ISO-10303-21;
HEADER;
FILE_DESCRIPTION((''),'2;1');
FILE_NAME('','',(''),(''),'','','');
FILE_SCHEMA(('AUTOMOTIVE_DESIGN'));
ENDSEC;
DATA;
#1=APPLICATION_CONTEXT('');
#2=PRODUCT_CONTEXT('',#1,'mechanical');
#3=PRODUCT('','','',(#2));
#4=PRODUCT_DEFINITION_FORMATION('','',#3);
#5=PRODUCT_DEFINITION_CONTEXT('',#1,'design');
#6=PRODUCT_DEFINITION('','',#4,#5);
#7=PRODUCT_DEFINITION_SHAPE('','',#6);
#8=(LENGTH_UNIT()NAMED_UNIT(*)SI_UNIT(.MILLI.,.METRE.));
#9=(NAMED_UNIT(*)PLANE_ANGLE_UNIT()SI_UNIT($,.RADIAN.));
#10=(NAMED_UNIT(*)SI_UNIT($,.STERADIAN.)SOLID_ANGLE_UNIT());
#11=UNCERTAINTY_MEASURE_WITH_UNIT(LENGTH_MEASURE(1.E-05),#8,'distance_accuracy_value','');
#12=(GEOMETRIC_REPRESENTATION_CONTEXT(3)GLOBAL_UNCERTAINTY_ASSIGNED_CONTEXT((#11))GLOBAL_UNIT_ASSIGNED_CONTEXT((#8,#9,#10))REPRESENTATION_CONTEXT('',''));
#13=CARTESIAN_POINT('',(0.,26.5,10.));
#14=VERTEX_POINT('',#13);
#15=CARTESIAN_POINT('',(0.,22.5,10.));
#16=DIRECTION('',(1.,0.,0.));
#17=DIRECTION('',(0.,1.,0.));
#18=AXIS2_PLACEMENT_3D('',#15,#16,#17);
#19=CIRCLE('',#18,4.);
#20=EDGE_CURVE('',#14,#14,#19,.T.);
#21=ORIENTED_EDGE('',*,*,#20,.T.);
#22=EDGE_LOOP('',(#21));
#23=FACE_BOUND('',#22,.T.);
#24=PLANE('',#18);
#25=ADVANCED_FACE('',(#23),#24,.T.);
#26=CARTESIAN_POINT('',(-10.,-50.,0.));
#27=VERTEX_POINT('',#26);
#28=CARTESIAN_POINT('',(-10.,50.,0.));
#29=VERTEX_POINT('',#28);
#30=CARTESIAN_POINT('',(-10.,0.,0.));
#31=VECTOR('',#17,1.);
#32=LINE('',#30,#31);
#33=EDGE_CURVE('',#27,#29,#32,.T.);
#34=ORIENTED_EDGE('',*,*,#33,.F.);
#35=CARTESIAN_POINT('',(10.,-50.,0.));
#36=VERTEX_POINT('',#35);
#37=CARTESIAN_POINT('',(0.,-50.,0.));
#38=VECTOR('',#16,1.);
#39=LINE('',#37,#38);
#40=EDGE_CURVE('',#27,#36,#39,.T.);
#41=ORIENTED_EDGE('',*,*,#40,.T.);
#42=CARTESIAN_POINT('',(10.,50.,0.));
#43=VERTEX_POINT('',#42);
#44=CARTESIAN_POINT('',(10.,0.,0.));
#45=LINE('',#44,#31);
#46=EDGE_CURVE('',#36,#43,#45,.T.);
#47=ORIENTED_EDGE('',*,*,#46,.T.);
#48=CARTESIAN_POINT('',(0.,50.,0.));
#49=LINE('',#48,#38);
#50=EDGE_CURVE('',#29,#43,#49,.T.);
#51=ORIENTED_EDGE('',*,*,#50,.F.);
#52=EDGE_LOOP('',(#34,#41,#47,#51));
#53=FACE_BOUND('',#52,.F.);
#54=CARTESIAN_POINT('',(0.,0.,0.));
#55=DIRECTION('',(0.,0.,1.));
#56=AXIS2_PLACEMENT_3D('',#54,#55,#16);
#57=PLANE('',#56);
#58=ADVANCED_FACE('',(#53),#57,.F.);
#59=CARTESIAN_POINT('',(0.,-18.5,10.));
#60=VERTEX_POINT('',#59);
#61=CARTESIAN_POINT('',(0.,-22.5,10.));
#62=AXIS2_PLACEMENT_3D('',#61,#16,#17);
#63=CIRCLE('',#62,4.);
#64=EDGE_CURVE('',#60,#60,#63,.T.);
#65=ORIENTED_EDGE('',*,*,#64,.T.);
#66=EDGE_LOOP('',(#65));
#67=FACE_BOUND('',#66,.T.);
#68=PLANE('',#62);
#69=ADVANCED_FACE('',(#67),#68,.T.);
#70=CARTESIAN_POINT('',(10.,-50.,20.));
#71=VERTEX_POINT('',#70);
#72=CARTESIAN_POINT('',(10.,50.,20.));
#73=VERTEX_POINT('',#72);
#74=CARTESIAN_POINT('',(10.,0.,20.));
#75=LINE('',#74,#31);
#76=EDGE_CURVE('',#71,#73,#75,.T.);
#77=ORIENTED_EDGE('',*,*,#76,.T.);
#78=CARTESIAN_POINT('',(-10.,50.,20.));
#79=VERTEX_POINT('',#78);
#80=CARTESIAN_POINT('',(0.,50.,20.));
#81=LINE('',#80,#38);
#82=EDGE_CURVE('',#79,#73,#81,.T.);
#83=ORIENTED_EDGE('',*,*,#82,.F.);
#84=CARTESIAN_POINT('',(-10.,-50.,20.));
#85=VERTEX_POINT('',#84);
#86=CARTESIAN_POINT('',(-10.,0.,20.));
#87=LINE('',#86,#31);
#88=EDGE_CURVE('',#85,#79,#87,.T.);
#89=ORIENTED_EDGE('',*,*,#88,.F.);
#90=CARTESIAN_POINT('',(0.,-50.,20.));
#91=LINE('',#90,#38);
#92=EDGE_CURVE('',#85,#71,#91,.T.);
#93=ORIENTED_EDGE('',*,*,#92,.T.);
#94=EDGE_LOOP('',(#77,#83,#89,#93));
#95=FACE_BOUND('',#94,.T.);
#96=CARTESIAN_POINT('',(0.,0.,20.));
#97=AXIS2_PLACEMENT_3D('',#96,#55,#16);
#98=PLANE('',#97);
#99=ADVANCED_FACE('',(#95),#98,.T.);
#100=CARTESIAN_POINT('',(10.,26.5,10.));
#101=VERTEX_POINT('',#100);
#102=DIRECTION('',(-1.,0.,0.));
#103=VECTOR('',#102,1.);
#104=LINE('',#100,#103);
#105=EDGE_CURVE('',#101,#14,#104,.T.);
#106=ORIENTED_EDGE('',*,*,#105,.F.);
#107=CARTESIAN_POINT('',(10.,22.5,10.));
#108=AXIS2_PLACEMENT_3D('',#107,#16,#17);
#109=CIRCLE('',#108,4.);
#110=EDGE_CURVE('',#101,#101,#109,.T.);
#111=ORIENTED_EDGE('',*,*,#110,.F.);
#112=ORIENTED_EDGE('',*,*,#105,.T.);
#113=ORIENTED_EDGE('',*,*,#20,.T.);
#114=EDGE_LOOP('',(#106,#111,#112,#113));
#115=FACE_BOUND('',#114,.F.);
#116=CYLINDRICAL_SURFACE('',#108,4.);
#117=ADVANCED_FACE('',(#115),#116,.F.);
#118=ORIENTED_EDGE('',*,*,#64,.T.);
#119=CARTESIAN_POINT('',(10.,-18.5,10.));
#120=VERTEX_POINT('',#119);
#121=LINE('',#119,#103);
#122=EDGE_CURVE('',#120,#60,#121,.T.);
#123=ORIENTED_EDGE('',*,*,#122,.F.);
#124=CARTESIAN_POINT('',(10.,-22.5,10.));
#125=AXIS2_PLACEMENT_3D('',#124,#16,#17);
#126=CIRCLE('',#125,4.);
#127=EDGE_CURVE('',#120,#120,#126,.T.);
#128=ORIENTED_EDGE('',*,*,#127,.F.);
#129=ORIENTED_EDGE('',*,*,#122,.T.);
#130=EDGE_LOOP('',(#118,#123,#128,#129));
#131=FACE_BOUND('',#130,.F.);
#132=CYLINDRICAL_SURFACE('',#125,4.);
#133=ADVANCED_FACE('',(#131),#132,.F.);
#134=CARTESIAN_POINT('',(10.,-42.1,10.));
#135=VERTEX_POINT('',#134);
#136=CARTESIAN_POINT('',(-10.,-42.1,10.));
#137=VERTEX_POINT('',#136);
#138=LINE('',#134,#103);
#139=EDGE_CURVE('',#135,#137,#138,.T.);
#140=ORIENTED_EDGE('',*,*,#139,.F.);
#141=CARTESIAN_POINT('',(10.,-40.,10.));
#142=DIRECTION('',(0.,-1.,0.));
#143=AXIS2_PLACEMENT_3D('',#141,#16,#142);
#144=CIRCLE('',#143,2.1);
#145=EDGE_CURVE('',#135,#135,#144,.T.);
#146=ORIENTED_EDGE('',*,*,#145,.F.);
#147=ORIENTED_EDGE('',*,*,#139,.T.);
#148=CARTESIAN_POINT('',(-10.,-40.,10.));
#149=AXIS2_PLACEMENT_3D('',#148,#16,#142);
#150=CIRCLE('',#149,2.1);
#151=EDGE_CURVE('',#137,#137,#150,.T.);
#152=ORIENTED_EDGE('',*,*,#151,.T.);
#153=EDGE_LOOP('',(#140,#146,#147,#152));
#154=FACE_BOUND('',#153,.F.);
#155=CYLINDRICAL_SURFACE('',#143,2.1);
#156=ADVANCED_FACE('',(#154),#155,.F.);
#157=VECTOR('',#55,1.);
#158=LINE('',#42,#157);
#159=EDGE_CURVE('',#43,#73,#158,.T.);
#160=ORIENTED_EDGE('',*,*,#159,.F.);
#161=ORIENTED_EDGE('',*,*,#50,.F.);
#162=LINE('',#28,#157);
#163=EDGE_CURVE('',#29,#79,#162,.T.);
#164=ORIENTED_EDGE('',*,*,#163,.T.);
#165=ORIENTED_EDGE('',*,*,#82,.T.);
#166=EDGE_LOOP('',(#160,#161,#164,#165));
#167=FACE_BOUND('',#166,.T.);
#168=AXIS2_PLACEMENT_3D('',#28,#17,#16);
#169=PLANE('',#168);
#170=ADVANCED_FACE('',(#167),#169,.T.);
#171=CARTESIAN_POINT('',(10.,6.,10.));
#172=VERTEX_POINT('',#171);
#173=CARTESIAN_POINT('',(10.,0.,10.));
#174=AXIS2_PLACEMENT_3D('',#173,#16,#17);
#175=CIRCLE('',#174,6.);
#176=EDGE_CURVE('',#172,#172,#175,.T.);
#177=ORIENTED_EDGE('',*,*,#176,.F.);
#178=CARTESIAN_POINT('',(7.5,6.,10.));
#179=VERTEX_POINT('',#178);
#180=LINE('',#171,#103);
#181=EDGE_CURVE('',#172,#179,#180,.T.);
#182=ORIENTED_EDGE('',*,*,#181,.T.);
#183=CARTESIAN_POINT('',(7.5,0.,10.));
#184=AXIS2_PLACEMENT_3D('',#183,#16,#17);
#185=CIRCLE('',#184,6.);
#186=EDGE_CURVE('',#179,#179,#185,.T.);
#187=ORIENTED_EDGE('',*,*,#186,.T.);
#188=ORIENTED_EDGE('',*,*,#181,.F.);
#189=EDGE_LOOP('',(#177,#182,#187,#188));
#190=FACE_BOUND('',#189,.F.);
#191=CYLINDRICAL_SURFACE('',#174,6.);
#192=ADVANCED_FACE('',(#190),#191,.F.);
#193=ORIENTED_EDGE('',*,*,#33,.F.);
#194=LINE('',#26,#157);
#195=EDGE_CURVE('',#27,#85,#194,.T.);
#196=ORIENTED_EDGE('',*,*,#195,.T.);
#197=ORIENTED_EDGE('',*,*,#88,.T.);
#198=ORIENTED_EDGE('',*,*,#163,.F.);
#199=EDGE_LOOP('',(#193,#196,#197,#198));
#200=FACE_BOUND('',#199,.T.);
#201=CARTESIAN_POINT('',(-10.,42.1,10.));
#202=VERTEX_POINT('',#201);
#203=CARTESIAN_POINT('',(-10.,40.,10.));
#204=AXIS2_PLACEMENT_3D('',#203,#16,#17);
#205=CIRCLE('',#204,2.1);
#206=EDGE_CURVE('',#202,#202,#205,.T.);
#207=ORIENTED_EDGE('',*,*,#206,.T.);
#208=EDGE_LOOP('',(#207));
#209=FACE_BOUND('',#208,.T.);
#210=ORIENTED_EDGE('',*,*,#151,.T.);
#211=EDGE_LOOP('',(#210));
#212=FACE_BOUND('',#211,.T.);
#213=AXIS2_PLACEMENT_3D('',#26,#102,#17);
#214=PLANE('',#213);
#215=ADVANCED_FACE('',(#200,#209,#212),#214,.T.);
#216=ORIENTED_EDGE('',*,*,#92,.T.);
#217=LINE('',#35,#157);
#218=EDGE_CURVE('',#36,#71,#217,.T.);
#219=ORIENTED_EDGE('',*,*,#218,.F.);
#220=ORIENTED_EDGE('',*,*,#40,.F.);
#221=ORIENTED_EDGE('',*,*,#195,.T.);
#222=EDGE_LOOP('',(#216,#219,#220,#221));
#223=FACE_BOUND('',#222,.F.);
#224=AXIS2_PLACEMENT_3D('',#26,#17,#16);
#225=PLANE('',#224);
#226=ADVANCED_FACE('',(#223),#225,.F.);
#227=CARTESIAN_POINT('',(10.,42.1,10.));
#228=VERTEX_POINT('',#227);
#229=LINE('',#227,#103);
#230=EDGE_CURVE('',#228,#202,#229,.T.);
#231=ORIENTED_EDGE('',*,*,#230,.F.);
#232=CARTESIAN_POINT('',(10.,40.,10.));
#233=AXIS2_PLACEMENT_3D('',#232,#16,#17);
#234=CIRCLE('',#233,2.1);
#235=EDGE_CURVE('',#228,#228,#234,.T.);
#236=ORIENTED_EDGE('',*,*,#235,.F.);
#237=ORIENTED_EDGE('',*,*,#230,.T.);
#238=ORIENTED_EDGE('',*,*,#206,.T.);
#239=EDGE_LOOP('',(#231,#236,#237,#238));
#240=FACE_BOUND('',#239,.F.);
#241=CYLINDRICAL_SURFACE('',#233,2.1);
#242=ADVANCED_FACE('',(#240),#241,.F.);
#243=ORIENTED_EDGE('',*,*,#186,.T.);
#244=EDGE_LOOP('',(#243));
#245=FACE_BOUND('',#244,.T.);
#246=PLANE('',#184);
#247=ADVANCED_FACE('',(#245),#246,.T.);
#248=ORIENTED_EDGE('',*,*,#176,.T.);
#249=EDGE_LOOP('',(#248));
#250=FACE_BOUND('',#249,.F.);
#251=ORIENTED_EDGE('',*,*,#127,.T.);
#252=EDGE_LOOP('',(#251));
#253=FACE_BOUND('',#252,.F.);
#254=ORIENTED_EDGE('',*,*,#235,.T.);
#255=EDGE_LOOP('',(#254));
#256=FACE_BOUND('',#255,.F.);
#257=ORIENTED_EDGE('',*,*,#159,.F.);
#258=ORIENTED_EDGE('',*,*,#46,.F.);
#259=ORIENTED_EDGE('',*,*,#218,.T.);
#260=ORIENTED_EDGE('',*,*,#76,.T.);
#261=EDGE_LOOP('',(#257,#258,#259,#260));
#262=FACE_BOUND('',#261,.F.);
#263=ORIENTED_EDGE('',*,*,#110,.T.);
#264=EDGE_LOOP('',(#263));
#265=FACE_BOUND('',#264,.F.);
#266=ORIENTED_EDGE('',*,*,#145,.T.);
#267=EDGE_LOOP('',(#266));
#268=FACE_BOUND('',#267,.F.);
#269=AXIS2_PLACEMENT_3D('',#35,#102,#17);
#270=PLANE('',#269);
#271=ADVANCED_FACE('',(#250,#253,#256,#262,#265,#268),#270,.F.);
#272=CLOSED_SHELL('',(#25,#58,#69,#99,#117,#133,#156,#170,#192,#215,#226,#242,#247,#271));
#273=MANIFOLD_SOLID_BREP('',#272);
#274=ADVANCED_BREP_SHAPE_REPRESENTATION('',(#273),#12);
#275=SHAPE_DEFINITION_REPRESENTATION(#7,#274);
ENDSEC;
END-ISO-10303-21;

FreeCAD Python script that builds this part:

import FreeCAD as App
import Part
import Sketcher

doc = App.newDocument("Part")
params = doc.addObject("Spreadsheet::Sheet", "Params")
for row, (alias, value) in enumerate([
    ("sketch1_width", "20 mm"),
    ("sketch1_height", "100 mm"),
    ("pad1_length", "20 mm"),
    ("sketch2_diameter", "12 mm"),
    ("pocket1_length", "2.5 mm"),
    ("sketch3_diameter", "8 mm"),
    ("pocket2_length", "10 mm"),
    ("sketch4_diameter", "4.2 mm"),
    ("pocket3_length", "25 mm"),
], start=1):
    params.set(f"A{row}", alias)
    params.set(f"B{row}", "=" + value)
    params.setAlias(f"B{row}", alias)

body = doc.addObject("PartDesign::Body", "Body")

sketch1 = body.newObject("Sketcher::SketchObject", "Sketch")
sketch1.AttachmentSupport = (doc.getObject("XY_Plane"), [""])
sketch1.MapMode = "FlatFace"
sketch1.addGeometry([
    Part.LineSegment(App.Vector(-10, 50, 0), App.Vector(-10, -50, 0)),
    Part.LineSegment(App.Vector(-10, -50, 0), App.Vector(10, -50, 0)),
    Part.LineSegment(App.Vector(10, -50, 0), App.Vector(10, 50, 0)),
    Part.LineSegment(App.Vector(10, 50, 0), App.Vector(-10, 50, 0)),
], False)
sketch1.addConstraint([
    Sketcher.Constraint("Coincident", 0, 2, 1, 1),
    Sketcher.Constraint("Coincident", 1, 2, 2, 1),
    Sketcher.Constraint("Coincident", 2, 2, 3, 1),
    Sketcher.Constraint("Coincident", 3, 2, 0, 1),
    Sketcher.Constraint("Vertical", 0),
    Sketcher.Constraint("Horizontal", 1),
    Sketcher.Constraint("Vertical", 2),
    Sketcher.Constraint("Horizontal", 3),
    Sketcher.Constraint("Symmetric", 0, 2, 2, 2, -1, 1),
    Sketcher.Constraint("DistanceX", 1, 1, 1, 2, 20.0),
    Sketcher.Constraint("DistanceY", 0, 2, 0, 1, 100.0),
])
sketch1.setExpression("Constraints[9]", "Params.sketch1_width")
sketch1.setExpression("Constraints[10]", "Params.sketch1_height")
pad1 = body.newObject("PartDesign::Pad", "Pad")
pad1.Profile = sketch1
pad1.setExpression("Length", "Params.pad1_length")

sketch2 = body.newObject("Sketcher::SketchObject", "Sketch001")
sketch2.AttachmentSupport = (doc.getObject("YZ_Plane"), [""])
sketch2.MapMode = "FlatFace"
sketch2.AttachmentOffset = App.Placement(App.Vector(0, 0, 10), App.Rotation())
sketch2.addGeometry(Part.Circle(App.Vector(0, 10, 0), App.Vector(0, 0, 1), 6), False)
sketch2.addConstraint([
    Sketcher.Constraint("PointOnObject", 0, 3, -2),
    Sketcher.Constraint("Diameter", 0, 12.0),
    Sketcher.Constraint("DistanceY", -1, 1, 0, 3, 10.0),
])
sketch2.setExpression("Constraints[1]", "Params.sketch2_diameter")
pocket1 = body.newObject("PartDesign::Pocket", "Pocket")
pocket1.Profile = sketch2
pocket1.setExpression("Length", "Params.pocket1_length")

sketch3 = body.newObject("Sketcher::SketchObject", "Sketch002")
sketch3.AttachmentSupport = (doc.getObject("YZ_Plane"), [""])
sketch3.MapMode = "FlatFace"
sketch3.AttachmentOffset = App.Placement(App.Vector(0, 0, 10), App.Rotation())
sketch3.addGeometry([
    Part.Circle(App.Vector(22.5, 10, 0), App.Vector(0, 0, 1), 4),
    Part.Circle(App.Vector(-22.5, 10, 0), App.Vector(0, 0, 1), 4),
], False)
sketch3.addConstraint([
    Sketcher.Constraint("Equal", 0, 1),
    Sketcher.Constraint("Symmetric", 0, 3, 1, 3, -2),
    Sketcher.Constraint("Diameter", 0, 8.0),
    Sketcher.Constraint("DistanceY", -1, 1, 0, 3, 10.0),
    Sketcher.Constraint("DistanceX", 1, 3, 0, 3, 45.0),
])
sketch3.setExpression("Constraints[2]", "Params.sketch3_diameter")
pocket2 = body.newObject("PartDesign::Pocket", "Pocket001")
pocket2.Profile = sketch3
pocket2.setExpression("Length", "Params.pocket2_length")

sketch4 = body.newObject("Sketcher::SketchObject", "Sketch003")
sketch4.AttachmentSupport = (doc.getObject("YZ_Plane"), [""])
sketch4.MapMode = "FlatFace"
sketch4.AttachmentOffset = App.Placement(App.Vector(0, 0, 10), App.Rotation())
sketch4.addGeometry([
    Part.Circle(App.Vector(-40, 10, 0), App.Vector(0, 0, 1), 2.1),
    Part.Circle(App.Vector(40, 10, 0), App.Vector(0, 0, 1), 2.1),
], False)
sketch4.addConstraint([
    Sketcher.Constraint("Equal", 0, 1),
    Sketcher.Constraint("Symmetric", 0, 3, 1, 3, -2),
    Sketcher.Constraint("Diameter", 0, 4.2),
    Sketcher.Constraint("DistanceX", 0, 3, -1, 1, 40.0),
    Sketcher.Constraint("DistanceY", -1, 1, 0, 3, 10.0),
])
sketch4.setExpression("Constraints[2]", "Params.sketch4_diameter")
pocket3 = body.newObject("PartDesign::Pocket", "Pocket002")
pocket3.Profile = sketch4
pocket3.setExpression("Length", "Params.pocket3_length")

doc.recompute()
